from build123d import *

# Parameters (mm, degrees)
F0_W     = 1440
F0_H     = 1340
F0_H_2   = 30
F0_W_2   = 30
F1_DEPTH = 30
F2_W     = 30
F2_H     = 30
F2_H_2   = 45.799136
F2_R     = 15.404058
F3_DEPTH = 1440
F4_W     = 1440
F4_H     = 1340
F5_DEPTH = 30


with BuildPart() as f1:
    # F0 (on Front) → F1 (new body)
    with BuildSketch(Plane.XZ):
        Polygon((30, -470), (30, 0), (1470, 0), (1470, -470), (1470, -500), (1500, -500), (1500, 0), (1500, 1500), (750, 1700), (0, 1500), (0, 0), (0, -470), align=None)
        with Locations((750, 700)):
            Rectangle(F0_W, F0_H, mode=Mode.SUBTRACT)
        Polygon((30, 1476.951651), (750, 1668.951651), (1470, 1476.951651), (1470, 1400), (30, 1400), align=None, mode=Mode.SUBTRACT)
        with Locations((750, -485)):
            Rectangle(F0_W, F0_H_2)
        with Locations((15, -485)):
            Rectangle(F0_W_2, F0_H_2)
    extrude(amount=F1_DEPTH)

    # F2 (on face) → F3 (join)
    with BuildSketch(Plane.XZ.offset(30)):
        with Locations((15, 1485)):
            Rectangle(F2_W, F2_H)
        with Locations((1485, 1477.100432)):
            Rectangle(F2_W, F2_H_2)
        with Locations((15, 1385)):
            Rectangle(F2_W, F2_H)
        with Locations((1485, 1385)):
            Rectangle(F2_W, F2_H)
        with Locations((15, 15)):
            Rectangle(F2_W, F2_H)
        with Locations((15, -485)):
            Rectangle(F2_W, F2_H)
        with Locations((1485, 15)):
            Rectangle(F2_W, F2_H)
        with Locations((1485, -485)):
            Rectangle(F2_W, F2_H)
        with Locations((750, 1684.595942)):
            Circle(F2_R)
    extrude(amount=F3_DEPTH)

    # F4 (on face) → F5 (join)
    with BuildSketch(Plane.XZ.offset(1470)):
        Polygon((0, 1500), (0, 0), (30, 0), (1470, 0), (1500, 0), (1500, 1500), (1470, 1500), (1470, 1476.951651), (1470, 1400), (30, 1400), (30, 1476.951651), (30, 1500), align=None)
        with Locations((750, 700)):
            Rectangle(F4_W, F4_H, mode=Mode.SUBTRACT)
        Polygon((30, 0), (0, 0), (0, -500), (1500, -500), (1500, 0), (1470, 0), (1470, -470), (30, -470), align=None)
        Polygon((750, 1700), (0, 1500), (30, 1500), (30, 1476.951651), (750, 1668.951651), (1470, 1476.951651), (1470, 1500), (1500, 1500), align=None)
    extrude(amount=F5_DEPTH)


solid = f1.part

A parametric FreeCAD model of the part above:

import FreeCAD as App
import Part
import Sketcher
from FreeCAD import Vector

doc = App.newDocument("Part")
params = doc.addObject("Spreadsheet::Sheet", "Params")
for row, (alias, value) in enumerate([
    ("sketch1_width", "1500 mm"),
    ("sketch1_width2", "1440 mm"),
    ("sketch1_height", "2000 mm"),
    ("sketch1_height2", "470 mm"),
    ("sketch1_height3", "1340 mm"),
    ("pad1_length", "30 mm"),
    ("sketch2_width", "30 mm"),
    ("pad2_length", "1440 mm"),
    ("sketch3_width", "1500 mm"),
    ("sketch3_width2", "1440 mm"),
    ("sketch3_height", "2000 mm"),
    ("sketch3_height2", "470 mm"),
    ("sketch3_height3", "1340 mm"),
    ("pad3_length", "30 mm"),
], start=1):
    params.set(f"A{row}", alias)
    params.set(f"B{row}", "=" + value)
    params.setAlias(f"B{row}", alias)

body = doc.addObject("PartDesign::Body", "Body")

# Sketch on XZ plane
sketch1 = doc.addObject("Sketcher::SketchObject", "Sketch")
body.addObject(sketch1)
sketch1.AttachmentSupport = (doc.XZ_Plane, [""])
sketch1.MapMode = "FlatFace"
sketch1.addGeometry(Part.LineSegment(Vector(0, 1500, 0), Vector(0, -500, 0)), False)
sketch1.addGeometry(Part.LineSegment(Vector(0, -500, 0), Vector(1500, -500, 0)), False)
sketch1.addGeometry(Part.LineSegment(Vector(1500, -500, 0), Vector(1500, 1500, 0)), False)
sketch1.addGeometry(Part.LineSegment(Vector(1500, 1500, 0), Vector(750, 1700, 0)), False)
sketch1.addGeometry(Part.LineSegment(Vector(750, 1700, 0), Vector(0, 1500, 0)), False)
sketch1.addGeometry(Part.LineSegment(Vector(1470, -470, 0), Vector(30, -470, 0)), False)
sketch1.addGeometry(Part.LineSegment(Vector(30, -470, 0), Vector(30, 0, 0)), False)
sketch1.addGeometry(Part.LineSegment(Vector(30, 0, 0), Vector(1470, 0, 0)), False)
sketch1.addGeometry(Part.LineSegment(Vector(1470, 0, 0), Vector(1470, -470, 0)), False)
sketch1.addGeometry(Part.LineSegment(Vector(1470, 30, 0), Vector(30, 30, 0)), False)
sketch1.addGeometry(Part.LineSegment(Vector(30, 30, 0), Vector(30, 1370, 0)), False)
sketch1.addGeometry(Part.LineSegment(Vector(30, 1370, 0), Vector(1470, 1370, 0)), False)
sketch1.addGeometry(Part.LineSegment(Vector(1470, 1370, 0), Vector(1470, 30, 0)), False)
sketch1.addGeometry(Part.LineSegment(Vector(30, 1400, 0), Vector(30, 1477, 0)), False)
sketch1.addGeometry(Part.LineSegment(Vector(30, 1477, 0), Vector(750, 1669, 0)), False)
sketch1.addGeometry(Part.LineSegment(Vector(750, 1669, 0), Vector(1470, 1477, 0)), False)
sketch1.addGeometry(Part.LineSegment(Vector(1470, 1477, 0), Vector(1470, 1400, 0)), False)
sketch1.addGeometry(Part.LineSegment(Vector(1470, 1400, 0), Vector(30, 1400, 0)), False)
sketch1.addConstraint(Sketcher.Constraint("Coincident", 0, 2, 1, 1))
sketch1.addConstraint(Sketcher.Constraint("Coincident", 1, 2, 2, 1))
sketch1.addConstraint(Sketcher.Constraint("Coincident", 2, 2, 3, 1))
sketch1.addConstraint(Sketcher.Constraint("Coincident", 3, 2, 4, 1))
sketch1.addConstraint(Sketcher.Constraint("Coincident", 4, 2, 0, 1))
sketch1.addConstraint(Sketcher.Constraint("Coincident", 5, 2, 6, 1))
sketch1.addConstraint(Sketcher.Constraint("Coincident", 6, 2, 7, 1))
sketch1.addConstraint(Sketcher.Constraint("Coincident", 7, 2, 8, 1))
sketch1.addConstraint(Sketcher.Constraint("Coincident", 8, 2, 5, 1))
sketch1.addConstraint(Sketcher.Constraint("Coincident", 9, 2, 10, 1))
sketch1.addConstraint(Sketcher.Constraint("Coincident", 10, 2, 11, 1))
sketch1.addConstraint(Sketcher.Constraint("Coincident", 11, 2, 12, 1))
sketch1.addConstraint(Sketcher.Constraint("Coincident", 12, 2, 9, 1))
sketch1.addConstraint(Sketcher.Constraint("Coincident", 13, 2, 14, 1))
sketch1.addConstraint(Sketcher.Constraint("Coincident", 14, 2, 15, 1))
sketch1.addConstraint(Sketcher.Constraint("Coincident", 15, 2, 16, 1))
sketch1.addConstraint(Sketcher.Constraint("Coincident", 16, 2, 17, 1))
sketch1.addConstraint(Sketcher.Constraint("Coincident", 17, 2, 13, 1))
sketch1.addConstraint(Sketcher.Constraint("Vertical", 0))
sketch1.addConstraint(Sketcher.Constraint("Horizontal", 1))
sketch1.addConstraint(Sketcher.Constraint("Vertical", 2))
sketch1.addConstraint(Sketcher.Constraint("Horizontal", 5))
sketch1.addConstraint(Sketcher.Constraint("Vertical", 6))
sketch1.addConstraint(Sketcher.Constraint("Horizontal", 7))
sketch1.addConstraint(Sketcher.Constraint("Vertical", 8))
sketch1.addConstraint(Sketcher.Constraint("Horizontal", 9))
sketch1.addConstraint(Sketcher.Constraint("Vertical", 10))
sketch1.addConstraint(Sketcher.Constraint("Horizontal", 11))
sketch1.addConstraint(Sketcher.Constraint("Vertical", 12))
sketch1.addConstraint(Sketcher.Constraint("Vertical", 13))
sketch1.addConstraint(Sketcher.Constraint("Vertical", 16))
sketch1.addConstraint(Sketcher.Constraint("Horizontal", 17))
sketch1.addConstraint(Sketcher.Constraint("PointOnObject", 0, 2, -2))
sketch1.addConstraint(Sketcher.Constraint("PointOnObject", 6, 2, -1))
sketch1.addConstraint(Sketcher.Constraint("Parallel", 4, 14))
sketch1.addConstraint(Sketcher.Constraint("Parallel", 3, 15))
sketch1.addConstraint(Sketcher.Constraint("Horizontal", 2, 2, 4, 2))
sketch1.addConstraint(Sketcher.Constraint("Horizontal", 13, 2, 15, 2))
sketch1.addConstraint(Sketcher.Constraint("Vertical", 6, 2, 9, 2))
sketch1.addConstraint(Sketcher.Constraint("Vertical", 8, 2, 11, 2))
sketch1.addConstraint(Sketcher.Constraint("Vertical", 10, 2, 13, 2))
sketch1.addConstraint(Sketcher.Constraint("Vertical", 3, 2, 14, 2))
sketch1.addConstraint(Sketcher.Constraint("Vertical", 12, 2, 15, 2))
sketch1.addConstraint(Sketcher.Constraint("Equal", 3, 4))
sketch1.addConstraint(Sketcher.Constraint("DistanceX", 1, 1, 1, 2, 1500.0))
sketch1.addConstraint(Sketcher.Constraint("DistanceX", 5, 2, 5, 1, 1440.0))
sketch1.addConstraint(Sketcher.Constraint("DistanceY", 0, 2, 0, 1, 2000.0))
sketch1.addConstraint(Sketcher.Constraint("DistanceY", 6, 1, 6, 2, 470.0))
sketch1.addConstraint(Sketcher.Constraint("DistanceY", 10, 1, 10, 2, 1340.0))
sketch1.addConstraint(Sketcher.Constraint("DistanceY", 0, 2, -1, 1, 500.0))
sketch1.addConstraint(Sketcher.Constraint("DistanceY", -1, 1, 3, 2, 1700.0))
sketch1.addConstraint(Sketcher.Constraint("DistanceY", -1, 1, 9, 2, 30.0))
sketch1.addConstraint(Sketcher.Constraint("DistanceY", -1, 1, 16, 2, 1400.0))
sketch1.addConstraint(Sketcher.Constraint("DistanceY", 13, 1, 13, 2, 76.951651))
sketch1.setExpression("Constraints[44]", "Params.sketch1_width")
sketch1.setExpression("Constraints[45]", "Params.sketch1_width2")
sketch1.setExpression("Constraints[46]", "Params.sketch1_height")
sketch1.setExpression("Constraints[47]", "Params.sketch1_height2")
sketch1.setExpression("Constraints[48]", "Params.sketch1_height3")
pad1 = doc.addObject("PartDesign::Pad", "Pad")
body.addObject(pad1)
pad1.Profile = sketch1
pad1.setExpression("Length", "Params.pad1_length")

# Sketch on XZ plane
sketch2 = doc.addObject("Sketcher::SketchObject", "Sketch001")
body.addObject(sketch2)
sketch2.AttachmentSupport = (doc.XZ_Plane, [""])
sketch2.MapMode = "FlatFace"
sketch2.AttachmentOffset = App.Placement(Vector(0, 0, 30), App.Rotation())
sketch2.addGeometry(Part.LineSegment(Vector(0, 1500, 0), Vector(0, 1470, 0)), False)
sketch2.addGeometry(Part.LineSegment(Vector(0, 1470, 0), Vector(30, 1470, 0)), False)
sketch2.addGeometry(Part.LineSegment(Vector(30, 1470, 0), Vector(30, 1500, 0)), False)
sketch2.addGeometry(Part.LineSegment(Vector(30, 1500, 0), Vector(0, 1500, 0)), False)
sketch2.addGeometry(Part.LineSegment(Vector(1470, 1500, 0), Vector(1470, 1454, 0)), False)
sketch2.addGeometry(Part.LineSegment(Vector(1470, 1454, 0), Vector(1500, 1454, 0)), False)
sketch2.addGeometry(Part.LineSegment(Vector(1500, 1454, 0), Vector(1500, 1500, 0)), False)
sketch2.addGeometry(Part.LineSegment(Vector(1500, 1500, 0), Vector(1470, 1500, 0)), False)
sketch2.addGeometry(Part.LineSegment(Vector(0, 1400, 0), Vector(0, 1370, 0)), False)
sketch2.addGeometry(Part.LineSegment(Vector(0, 1370, 0), Vector(30, 1370, 0)), False)
sketch2.addGeometry(Part.LineSegment(Vector(30, 1370, 0), Vector(30, 1400, 0)), False)
sketch2.addGeometry(Part.LineSegment(Vector(30, 1400, 0), Vector(0, 1400, 0)), False)
sketch2.addGeometry(Part.LineSegment(Vector(1470, 1400, 0), Vector(1470, 1370, 0)), False)
sketch2.addGeometry(Part.LineSegment(Vector(1470, 1370, 0), Vector(1500, 1370, 0)), False)
sketch2.addGeometry(Part.LineSegment(Vector(1500, 1370, 0), Vector(1500, 1400, 0)), False)
sketch2.addGeometry(Part.LineSegment(Vector(1500, 1400, 0), Vector(1470, 1400, 0)), False)
sketch2.addGeometry(Part.LineSegment(Vector(0, 30, 0), Vector(0, 0, 0)), False)
sketch2.addGeometry(Part.LineSegment(Vector(0, 0, 0), Vector(30, 0, 0)), False)
sketch2.addGeometry(Part.LineSegment(Vector(30, 0, 0), Vector(30, 30, 0)), False)
sketch2.addGeometry(Part.LineSegment(Vector(30, 30, 0), Vector(0, 30, 0)), False)
sketch2.addGeometry(Part.LineSegment(Vector(0, -470, 0), Vector(0, -500, 0)), False)
sketch2.addGeometry(Part.LineSegment(Vector(0, -500, 0), Vector(30, -500, 0)), False)
sketch2.addGeometry(Part.LineSegment(Vector(30, -500, 0), Vector(30, -470, 0)), False)
sketch2.addGeometry(Part.LineSegment(Vector(30, -470, 0), Vector(0, -470, 0)), False)
sketch2.addGeometry(Part.LineSegment(Vector(1470, 30, 0), Vector(1470, 0, 0)), False)
sketch2.addGeometry(Part.LineSegment(Vector(1470, 0, 0), Vector(1500, 0, 0)), False)
sketch2.addGeometry(Part.LineSegment(Vector(1500, 0, 0), Vector(1500, 30, 0)), False)
sketch2.addGeometry(Part.LineSegment(Vector(1500, 30, 0), Vector(1470, 30, 0)), False)
sketch2.addGeometry(Part.LineSegment(Vector(1470, -470, 0), Vector(1470, -500, 0)), False)
sketch2.addGeometry(Part.LineSegment(Vector(1470, -500, 0), Vector(1500, -500, 0)), False)
sketch2.addGeometry(Part.LineSegment(Vector(1500, -500, 0), Vector(1500, -470, 0)), False)
sketch2.addGeometry(Part.LineSegment(Vector(1500, -470, 0), Vector(1470, -470, 0)), False)
sketch2.addGeometry(Part.Circle(Vector(750, 1685, 0), Vector(0, 0, 1), 15), False)
sketch2.addConstraint(Sketcher.Constraint("Coincident", 0, 2, 1, 1))
sketch2.addConstraint(Sketcher.Constraint("Coincident", 1, 2, 2, 1))
sketch2.addConstraint(Sketcher.Constraint("Coincident", 2, 2, 3, 1))
sketch2.addConstraint(Sketcher.Constraint("Coincident", 3, 2, 0, 1))
sketch2.addConstraint(Sketcher.Constraint("Coincident", 4, 2, 5, 1))
sketch2.addConstraint(Sketcher.Constraint("Coincident", 5, 2, 6, 1))
sketch2.addConstraint(Sketcher.Constraint("Coincident", 6, 2, 7, 1))
sketch2.addConstraint(Sketcher.Constraint("Coincident", 7, 2, 4, 1))
sketch2.addConstraint(Sketcher.Constraint("Coincident", 8, 2, 9, 1))
sketch2.addConstraint(Sketcher.Constraint("Coincident", 9, 2, 10, 1))
sketch2.addConstraint(Sketcher.Constraint("Coincident", 10, 2, 11, 1))
sketch2.addConstraint(Sketcher.Constraint("Coincident", 11, 2, 8, 1))
sketch2.addConstraint(Sketcher.Constraint("Coincident", 12, 2, 13, 1))
sketch2.addConstraint(Sketcher.Constraint("Coincident", 13, 2, 14, 1))
sketch2.addConstraint(Sketcher.Constraint("Coincident", 14, 2, 15, 1))
sketch2.addConstraint(Sketcher.Constraint("Coincident", 15, 2, 12, 1))
sketch2.addConstraint(Sketcher.Constraint("Coincident", 16, 2, 17, 1))
sketch2.addConstraint(Sketcher.Constraint("Coincident", 17, 2, 18, 1))
sketch2.addConstraint(Sketcher.Constraint("Coincident", 18, 2, 19, 1))
sketch2.addConstraint(Sketcher.Constraint("Coincident", 19, 2, 16, 1))
sketch2.addConstraint(Sketcher.Constraint("Coincident", 20, 2, 21, 1))
sketch2.addConstraint(Sketcher.Constraint("Coincident", 21, 2, 22, 1))
sketch2.addConstraint(Sketcher.Constraint("Coincident", 22, 2, 23, 1))
sketch2.addConstraint(Sketcher.Constraint("Coincident", 23, 2, 20, 1))
sketch2.addConstraint(Sketcher.Constraint("Coincident", 24, 2, 25, 1))
sketch2.addConstraint(Sketcher.Constraint("Coincident", 25, 2, 26, 1))
sketch2.addConstraint(Sketcher.Constraint("Coincident", 26, 2, 27, 1))
sketch2.addConstraint(Sketcher.Constraint("Coincident", 27, 2, 24, 1))
sketch2.addConstraint(Sketcher.Constraint("Coincident", 28, 2, 29, 1))
sketch2.addConstraint(Sketcher.Constraint("Coincident", 29, 2, 30, 1))
sketch2.addConstraint(Sketcher.Constraint("Coincident", 30, 2, 31, 1))
sketch2.addConstraint(Sketcher.Constraint("Coincident", 31, 2, 28, 1))
sketch2.addConstraint(Sketcher.Constraint("Vertical", 0))
sketch2.addConstraint(Sketcher.Constraint("Horizontal", 1))
sketch2.addConstraint(Sketcher.Constraint("Vertical", 2))
sketch2.addConstraint(Sketcher.Constraint("Horizontal", 3))
sketch2.addConstraint(Sketcher.Constraint("Vertical", 4))
sketch2.addConstraint(Sketcher.Constraint("Horizontal", 5))
sketch2.addConstraint(Sketcher.Constraint("Vertical", 6))
sketch2.addConstraint(Sketcher.Constraint("Horizontal", 7))
sketch2.addConstraint(Sketcher.Constraint("Vertical", 8))
sketch2.addConstraint(Sketcher.Constraint("Horizontal", 9))
sketch2.addConstraint(Sketcher.Constraint("Vertical", 10))
sketch2.addConstraint(Sketcher.Constraint("Horizontal", 11))
sketch2.addConstraint(Sketcher.Constraint("Vertical", 12))
sketch2.addConstraint(Sketcher.Constraint("Horizontal", 13))
sketch2.addConstraint(Sketcher.Constraint("Vertical", 14))
sketch2.addConstraint(Sketcher.Constraint("Horizontal", 15))
sketch2.addConstraint(Sketcher.Constraint("Vertical", 16))
sketch2.addConstraint(Sketcher.Constraint("Horizontal", 17))
sketch2.addConstraint(Sketcher.Constraint("Vertical", 18))
sketch2.addConstraint(Sketcher.Constraint("Horizontal", 19))
sketch2.addConstraint(Sketcher.Constraint("Vertical", 20))
sketch2.addConstraint(Sketcher.Constraint("Horizontal", 21))
sketch2.addConstraint(Sketcher.Constraint("Vertical", 22))
sketch2.addConstraint(Sketcher.Constraint("Horizontal", 23))
sketch2.addConstraint(Sketcher.Constraint("Vertical", 24))
sketch2.addConstraint(Sketcher.Constraint("Horizontal", 25))
sketch2.addConstraint(Sketcher.Constraint("Vertical", 26))
sketch2.addConstraint(Sketcher.Constraint("Horizontal", 27))
sketch2.addConstraint(Sketcher.Constraint("Vertical", 28))
sketch2.addConstraint(Sketcher.Constraint("Horizontal", 29))
sketch2.addConstraint(Sketcher.Constraint("Vertical", 30))
sketch2.addConstraint(Sketcher.Constraint("Horizontal", 31))
sketch2.addConstraint(Sketcher.Constraint("Coincident", 16, 2, -1, 1))
sketch2.addConstraint(Sketcher.Constraint("PointOnObject", 0, 2, -2))
sketch2.addConstraint(Sketcher.Constraint("PointOnObject", 8, 2, -2))
sketch2.addConstraint(Sketcher.Constraint("PointOnObject", 20, 2, -2))
sketch2.addConstraint(Sketcher.Constraint("PointOnObject", 24, 2, -1))
sketch2.addConstraint(Sketcher.Constraint("Horizontal", 3, 2, 6, 2))
sketch2.addConstraint(Sketcher.Constraint("Horizontal", 9, 2, 12, 2))
sketch2.addConstraint(Sketcher.Constraint("Horizontal", 11, 2, 14, 2))
sketch2.addConstraint(Sketcher.Constraint("Horizontal", 19, 2, 26, 2))
sketch2.addConstraint(Sketcher.Constraint("Horizontal", 21, 2, 28, 2))
sketch2.addConstraint(Sketcher.Constraint("Horizontal", 23, 2, 30, 2))
sketch2.addConstraint(Sketcher.Constraint("Vertical", 2, 2, 9, 2))
sketch2.addConstraint(Sketcher.Constraint("Vertical", 7, 2, 12, 2))
sketch2.addConstraint(Sketcher.Constraint("Vertical", 6, 2, 13, 2))
sketch2.addConstraint(Sketcher.Constraint("Vertical", 10, 2, 17, 2))
sketch2.addConstraint(Sketcher.Constraint("Vertical", 18, 2, 21, 2))
sketch2.addConstraint(Sketcher.Constraint("Vertical", 15, 2, 24, 2))
sketch2.addConstraint(Sketcher.Constraint("Vertical", 14, 2, 25, 2))
sketch2.addConstraint(Sketcher.Constraint("Vertical", 27, 2, 28, 2))
sketch2.addConstraint(Sketcher.Constraint("Vertical", 26, 2, 29, 2))
sketch2.addConstraint(Sketcher.Constraint("Equal", 3, 5))
sketch2.addConstraint(Sketcher.Constraint("Equal", 31, 0))
sketch2.addConstraint(Sketcher.Constraint("Equal", 2, 8))
sketch2.addConstraint(Sketcher.Constraint("Equal", 14, 16))
sketch2.addConstraint(Sketcher.Constraint("Equal", 18, 20))
sketch2.addConstraint(Sketcher.Constraint("DistanceX", 1, 1, 1, 2, 30.0))
sketch2.addConstraint(Sketcher.Constraint("DistanceX", -1, 1, 32, 3, 750.0))
sketch2.addConstraint(Sketcher.Constraint("DistanceY", -1, 1, 0, 2, 1470.0))
sketch2.addConstraint(Sketcher.Constraint("DistanceX", -1, 1, 4, 2, 1470.0))
sketch2.addConstraint(Sketcher.Constraint("DistanceY", -1, 1, 8, 2, 1370.0))
sketch2.addConstraint(Sketcher.Constraint("DistanceY", 20, 2, -1, 1, 500.0))
sketch2.addConstraint(Sketcher.Constraint("Diameter", 32, 30.808116))
sketch2.addConstraint(Sketcher.Constraint("DistanceY", 4, 2, 4, 1, 45.799136))
sketch2.addConstraint(Sketcher.Constraint("DistanceY", -1, 1, 32, 3, 1684.595942))
sketch2.setExpression("Constraints[89]", "Params.sketch2_width")
pad2 = doc.addObject("PartDesign::Pad", "Pad001")
body.addObject(pad2)
pad2.Profile = sketch2
pad2.setExpression("Length", "Params.pad2_length")

# Sketch on XZ plane
sketch3 = doc.addObject("Sketcher::SketchObject", "Sketch002")
body.addObject(sketch3)
sketch3.AttachmentSupport = (doc.XZ_Plane, [""])
sketch3.MapMode = "FlatFace"
sketch3.AttachmentOffset = App.Placement(Vector(0, 0, 1470), App.Rotation())
sketch3.addGeometry(Part.LineSegment(Vector(0, 1500, 0), Vector(0, -500, 0)), False)
sketch3.addGeometry(Part.LineSegment(Vector(0, -500, 0), Vector(1500, -500, 0)), False)
sketch3.addGeometry(Part.LineSegment(Vector(1500, -500, 0), Vector(1500, 1500, 0)), False)
sketch3.addGeometry(Part.LineSegment(Vector(1500, 1500, 0), Vector(750, 1700, 0)), False)
sketch3.addGeometry(Part.LineSegment(Vector(750, 1700, 0), Vector(0, 1500, 0)), False)
sketch3.addGeometry(Part.LineSegment(Vector(1470, 1477, 0), Vector(1470, 1400, 0)), False)
sketch3.addGeometry(Part.LineSegment(Vector(1470, 1400, 0), Vector(30, 1400, 0)), False)
sketch3.addGeometry(Part.LineSegment(Vector(30, 1400, 0), Vector(30, 1477, 0)), False)
sketch3.addGeometry(Part.LineSegment(Vector(30, 1477, 0), Vector(750, 1669, 0)), False)
sketch3.addGeometry(Part.LineSegment(Vector(750, 1669, 0), Vector(1470, 1477, 0)), False)
sketch3.addGeometry(Part.LineSegment(Vector(30, 0, 0), Vector(1470, 0, 0)), False)
sketch3.addGeometry(Part.LineSegment(Vector(1470, 0, 0), Vector(1470, -470, 0)), False)
sketch3.addGeometry(Part.LineSegment(Vector(1470, -470, 0), Vector(30, -470, 0)), False)
sketch3.addGeometry(Part.LineSegment(Vector(30, -470, 0), Vector(30, 0, 0)), False)
sketch3.addGeometry(Part.LineSegment(Vector(1470, 30, 0), Vector(30, 30, 0)), False)
sketch3.addGeometry(Part.LineSegment(Vector(30, 30, 0), Vector(30, 1370, 0)), False)
sketch3.addGeometry(Part.LineSegment(Vector(30, 1370, 0), Vector(1470, 1370, 0)), False)
sketch3.addGeometry(Part.LineSegment(Vector(1470, 1370, 0), Vector(1470, 30, 0)), False)
sketch3.addConstraint(Sketcher.Constraint("Coincident", 0, 2, 1, 1))
sketch3.addConstraint(Sketcher.Constraint("Coincident", 1, 2, 2, 1))
sketch3.addConstraint(Sketcher.Constraint("Coincident", 2, 2, 3, 1))
sketch3.addConstraint(Sketcher.Constraint("Coincident", 3, 2, 4, 1))
sketch3.addConstraint(Sketcher.Constraint("Coincident", 4, 2, 0, 1))
sketch3.addConstraint(Sketcher.Constraint("Coincident", 5, 2, 6, 1))
sketch3.addConstraint(Sketcher.Constraint("Coincident", 6, 2, 7, 1))
sketch3.addConstraint(Sketcher.Constraint("Coincident", 7, 2, 8, 1))
sketch3.addConstraint(Sketcher.Constraint("Coincident", 8, 2, 9, 1))
sketch3.addConstraint(Sketcher.Constraint("Coincident", 9, 2, 5, 1))
sketch3.addConstraint(Sketcher.Constraint("Coincident", 10, 2, 11, 1))
sketch3.addConstraint(Sketcher.Constraint("Coincident", 11, 2, 12, 1))
sketch3.addConstraint(Sketcher.Constraint("Coincident", 12, 2, 13, 1))
sketch3.addConstraint(Sketcher.Constraint("Coincident", 13, 2, 10, 1))
sketch3.addConstraint(Sketcher.Constraint("Coincident", 14, 2, 15, 1))
sketch3.addConstraint(Sketcher.Constraint("Coincident", 15, 2, 16, 1))
sketch3.addConstraint(Sketcher.Constraint("Coincident", 16, 2, 17, 1))
sketch3.addConstraint(Sketcher.Constraint("Coincident", 17, 2, 14, 1))
sketch3.addConstraint(Sketcher.Constraint("Vertical", 0))
sketch3.addConstraint(Sketcher.Constraint("Horizontal", 1))
sketch3.addConstraint(Sketcher.Constraint("Vertical", 2))
sketch3.addConstraint(Sketcher.Constraint("Vertical", 5))
sketch3.addConstraint(Sketcher.Constraint("Horizontal", 6))
sketch3.addConstraint(Sketcher.Constraint("Vertical", 7))
sketch3.addConstraint(Sketcher.Constraint("Horizontal", 10))
sketch3.addConstraint(Sketcher.Constraint("Vertical", 11))
sketch3.addConstraint(Sketcher.Constraint("Horizontal", 12))
sketch3.addConstraint(Sketcher.Constraint("Vertical", 13))
sketch3.addConstraint(Sketcher.Constraint("Horizontal", 14))
sketch3.addConstraint(Sketcher.Constraint("Vertical", 15))
sketch3.addConstraint(Sketcher.Constraint("Horizontal", 16))
sketch3.addConstraint(Sketcher.Constraint("Vertical", 17))
sketch3.addConstraint(Sketcher.Constraint("PointOnObject", 0, 2, -2))
sketch3.addConstraint(Sketcher.Constraint("PointOnObject", 10, 2, -1))
sketch3.addConstraint(Sketcher.Constraint("Parallel", 4, 8))
sketch3.addConstraint(Sketcher.Constraint("Parallel", 3, 9))
sketch3.addConstraint(Sketcher.Constraint("Horizontal", 2, 2, 4, 2))
sketch3.addConstraint(Sketcher.Constraint("Horizontal", 7, 2, 9, 2))
sketch3.addConstraint(Sketcher.Constraint("Vertical", 3, 2, 8, 2))
sketch3.addConstraint(Sketcher.Constraint("Vertical", 9, 2, 10, 2))
sketch3.addConstraint(Sketcher.Constraint("Vertical", 7, 2, 12, 2))
sketch3.addConstraint(Sketcher.Constraint("Vertical", 13, 2, 14, 2))
sketch3.addConstraint(Sketcher.Constraint("Vertical", 11, 2, 16, 2))
sketch3.addConstraint(Sketcher.Constraint("Equal", 3, 4))
sketch3.addConstraint(Sketcher.Constraint("DistanceX", 1, 1, 1, 2, 1500.0))
sketch3.addConstraint(Sketcher.Constraint("DistanceX", 6, 2, 6, 1, 1440.0))
sketch3.addConstraint(Sketcher.Constraint("DistanceY", 0, 2, 0, 1, 2000.0))
sketch3.addConstraint(Sketcher.Constraint("DistanceY", 11, 2, 11, 1, 470.0))
sketch3.addConstraint(Sketcher.Constraint("DistanceY", 15, 1, 15, 2, 1340.0))
sketch3.addConstraint(Sketcher.Constraint("DistanceY", 0, 2, -1, 1, 500.0))
sketch3.addConstraint(Sketcher.Constraint("DistanceY", -1, 1, 3, 2, 1700.0))
sketch3.addConstraint(Sketcher.Constraint("DistanceY", -1, 1, 5, 2, 1400.0))
sketch3.addConstraint(Sketcher.Constraint("DistanceY", -1, 1, 14, 2, 30.0))
sketch3.addConstraint(Sketcher.Constraint("DistanceY", 5, 2, 5, 1, 76.951651))
sketch3.setExpression("Constraints[44]", "Params.sketch3_width")
sketch3.setExpression("Constraints[45]", "Params.sketch3_width2")
sketch3.setExpression("Constraints[46]", "Params.sketch3_height")
sketch3.setExpression("Constraints[47]", "Params.sketch3_height2")
sketch3.setExpression("Constraints[48]", "Params.sketch3_height3")
pad3 = doc.addObject("PartDesign::Pad", "Pad002")
body.addObject(pad3)
pad3.Profile = sketch3
pad3.setExpression("Length", "Params.pad3_length")

doc.recompute()
